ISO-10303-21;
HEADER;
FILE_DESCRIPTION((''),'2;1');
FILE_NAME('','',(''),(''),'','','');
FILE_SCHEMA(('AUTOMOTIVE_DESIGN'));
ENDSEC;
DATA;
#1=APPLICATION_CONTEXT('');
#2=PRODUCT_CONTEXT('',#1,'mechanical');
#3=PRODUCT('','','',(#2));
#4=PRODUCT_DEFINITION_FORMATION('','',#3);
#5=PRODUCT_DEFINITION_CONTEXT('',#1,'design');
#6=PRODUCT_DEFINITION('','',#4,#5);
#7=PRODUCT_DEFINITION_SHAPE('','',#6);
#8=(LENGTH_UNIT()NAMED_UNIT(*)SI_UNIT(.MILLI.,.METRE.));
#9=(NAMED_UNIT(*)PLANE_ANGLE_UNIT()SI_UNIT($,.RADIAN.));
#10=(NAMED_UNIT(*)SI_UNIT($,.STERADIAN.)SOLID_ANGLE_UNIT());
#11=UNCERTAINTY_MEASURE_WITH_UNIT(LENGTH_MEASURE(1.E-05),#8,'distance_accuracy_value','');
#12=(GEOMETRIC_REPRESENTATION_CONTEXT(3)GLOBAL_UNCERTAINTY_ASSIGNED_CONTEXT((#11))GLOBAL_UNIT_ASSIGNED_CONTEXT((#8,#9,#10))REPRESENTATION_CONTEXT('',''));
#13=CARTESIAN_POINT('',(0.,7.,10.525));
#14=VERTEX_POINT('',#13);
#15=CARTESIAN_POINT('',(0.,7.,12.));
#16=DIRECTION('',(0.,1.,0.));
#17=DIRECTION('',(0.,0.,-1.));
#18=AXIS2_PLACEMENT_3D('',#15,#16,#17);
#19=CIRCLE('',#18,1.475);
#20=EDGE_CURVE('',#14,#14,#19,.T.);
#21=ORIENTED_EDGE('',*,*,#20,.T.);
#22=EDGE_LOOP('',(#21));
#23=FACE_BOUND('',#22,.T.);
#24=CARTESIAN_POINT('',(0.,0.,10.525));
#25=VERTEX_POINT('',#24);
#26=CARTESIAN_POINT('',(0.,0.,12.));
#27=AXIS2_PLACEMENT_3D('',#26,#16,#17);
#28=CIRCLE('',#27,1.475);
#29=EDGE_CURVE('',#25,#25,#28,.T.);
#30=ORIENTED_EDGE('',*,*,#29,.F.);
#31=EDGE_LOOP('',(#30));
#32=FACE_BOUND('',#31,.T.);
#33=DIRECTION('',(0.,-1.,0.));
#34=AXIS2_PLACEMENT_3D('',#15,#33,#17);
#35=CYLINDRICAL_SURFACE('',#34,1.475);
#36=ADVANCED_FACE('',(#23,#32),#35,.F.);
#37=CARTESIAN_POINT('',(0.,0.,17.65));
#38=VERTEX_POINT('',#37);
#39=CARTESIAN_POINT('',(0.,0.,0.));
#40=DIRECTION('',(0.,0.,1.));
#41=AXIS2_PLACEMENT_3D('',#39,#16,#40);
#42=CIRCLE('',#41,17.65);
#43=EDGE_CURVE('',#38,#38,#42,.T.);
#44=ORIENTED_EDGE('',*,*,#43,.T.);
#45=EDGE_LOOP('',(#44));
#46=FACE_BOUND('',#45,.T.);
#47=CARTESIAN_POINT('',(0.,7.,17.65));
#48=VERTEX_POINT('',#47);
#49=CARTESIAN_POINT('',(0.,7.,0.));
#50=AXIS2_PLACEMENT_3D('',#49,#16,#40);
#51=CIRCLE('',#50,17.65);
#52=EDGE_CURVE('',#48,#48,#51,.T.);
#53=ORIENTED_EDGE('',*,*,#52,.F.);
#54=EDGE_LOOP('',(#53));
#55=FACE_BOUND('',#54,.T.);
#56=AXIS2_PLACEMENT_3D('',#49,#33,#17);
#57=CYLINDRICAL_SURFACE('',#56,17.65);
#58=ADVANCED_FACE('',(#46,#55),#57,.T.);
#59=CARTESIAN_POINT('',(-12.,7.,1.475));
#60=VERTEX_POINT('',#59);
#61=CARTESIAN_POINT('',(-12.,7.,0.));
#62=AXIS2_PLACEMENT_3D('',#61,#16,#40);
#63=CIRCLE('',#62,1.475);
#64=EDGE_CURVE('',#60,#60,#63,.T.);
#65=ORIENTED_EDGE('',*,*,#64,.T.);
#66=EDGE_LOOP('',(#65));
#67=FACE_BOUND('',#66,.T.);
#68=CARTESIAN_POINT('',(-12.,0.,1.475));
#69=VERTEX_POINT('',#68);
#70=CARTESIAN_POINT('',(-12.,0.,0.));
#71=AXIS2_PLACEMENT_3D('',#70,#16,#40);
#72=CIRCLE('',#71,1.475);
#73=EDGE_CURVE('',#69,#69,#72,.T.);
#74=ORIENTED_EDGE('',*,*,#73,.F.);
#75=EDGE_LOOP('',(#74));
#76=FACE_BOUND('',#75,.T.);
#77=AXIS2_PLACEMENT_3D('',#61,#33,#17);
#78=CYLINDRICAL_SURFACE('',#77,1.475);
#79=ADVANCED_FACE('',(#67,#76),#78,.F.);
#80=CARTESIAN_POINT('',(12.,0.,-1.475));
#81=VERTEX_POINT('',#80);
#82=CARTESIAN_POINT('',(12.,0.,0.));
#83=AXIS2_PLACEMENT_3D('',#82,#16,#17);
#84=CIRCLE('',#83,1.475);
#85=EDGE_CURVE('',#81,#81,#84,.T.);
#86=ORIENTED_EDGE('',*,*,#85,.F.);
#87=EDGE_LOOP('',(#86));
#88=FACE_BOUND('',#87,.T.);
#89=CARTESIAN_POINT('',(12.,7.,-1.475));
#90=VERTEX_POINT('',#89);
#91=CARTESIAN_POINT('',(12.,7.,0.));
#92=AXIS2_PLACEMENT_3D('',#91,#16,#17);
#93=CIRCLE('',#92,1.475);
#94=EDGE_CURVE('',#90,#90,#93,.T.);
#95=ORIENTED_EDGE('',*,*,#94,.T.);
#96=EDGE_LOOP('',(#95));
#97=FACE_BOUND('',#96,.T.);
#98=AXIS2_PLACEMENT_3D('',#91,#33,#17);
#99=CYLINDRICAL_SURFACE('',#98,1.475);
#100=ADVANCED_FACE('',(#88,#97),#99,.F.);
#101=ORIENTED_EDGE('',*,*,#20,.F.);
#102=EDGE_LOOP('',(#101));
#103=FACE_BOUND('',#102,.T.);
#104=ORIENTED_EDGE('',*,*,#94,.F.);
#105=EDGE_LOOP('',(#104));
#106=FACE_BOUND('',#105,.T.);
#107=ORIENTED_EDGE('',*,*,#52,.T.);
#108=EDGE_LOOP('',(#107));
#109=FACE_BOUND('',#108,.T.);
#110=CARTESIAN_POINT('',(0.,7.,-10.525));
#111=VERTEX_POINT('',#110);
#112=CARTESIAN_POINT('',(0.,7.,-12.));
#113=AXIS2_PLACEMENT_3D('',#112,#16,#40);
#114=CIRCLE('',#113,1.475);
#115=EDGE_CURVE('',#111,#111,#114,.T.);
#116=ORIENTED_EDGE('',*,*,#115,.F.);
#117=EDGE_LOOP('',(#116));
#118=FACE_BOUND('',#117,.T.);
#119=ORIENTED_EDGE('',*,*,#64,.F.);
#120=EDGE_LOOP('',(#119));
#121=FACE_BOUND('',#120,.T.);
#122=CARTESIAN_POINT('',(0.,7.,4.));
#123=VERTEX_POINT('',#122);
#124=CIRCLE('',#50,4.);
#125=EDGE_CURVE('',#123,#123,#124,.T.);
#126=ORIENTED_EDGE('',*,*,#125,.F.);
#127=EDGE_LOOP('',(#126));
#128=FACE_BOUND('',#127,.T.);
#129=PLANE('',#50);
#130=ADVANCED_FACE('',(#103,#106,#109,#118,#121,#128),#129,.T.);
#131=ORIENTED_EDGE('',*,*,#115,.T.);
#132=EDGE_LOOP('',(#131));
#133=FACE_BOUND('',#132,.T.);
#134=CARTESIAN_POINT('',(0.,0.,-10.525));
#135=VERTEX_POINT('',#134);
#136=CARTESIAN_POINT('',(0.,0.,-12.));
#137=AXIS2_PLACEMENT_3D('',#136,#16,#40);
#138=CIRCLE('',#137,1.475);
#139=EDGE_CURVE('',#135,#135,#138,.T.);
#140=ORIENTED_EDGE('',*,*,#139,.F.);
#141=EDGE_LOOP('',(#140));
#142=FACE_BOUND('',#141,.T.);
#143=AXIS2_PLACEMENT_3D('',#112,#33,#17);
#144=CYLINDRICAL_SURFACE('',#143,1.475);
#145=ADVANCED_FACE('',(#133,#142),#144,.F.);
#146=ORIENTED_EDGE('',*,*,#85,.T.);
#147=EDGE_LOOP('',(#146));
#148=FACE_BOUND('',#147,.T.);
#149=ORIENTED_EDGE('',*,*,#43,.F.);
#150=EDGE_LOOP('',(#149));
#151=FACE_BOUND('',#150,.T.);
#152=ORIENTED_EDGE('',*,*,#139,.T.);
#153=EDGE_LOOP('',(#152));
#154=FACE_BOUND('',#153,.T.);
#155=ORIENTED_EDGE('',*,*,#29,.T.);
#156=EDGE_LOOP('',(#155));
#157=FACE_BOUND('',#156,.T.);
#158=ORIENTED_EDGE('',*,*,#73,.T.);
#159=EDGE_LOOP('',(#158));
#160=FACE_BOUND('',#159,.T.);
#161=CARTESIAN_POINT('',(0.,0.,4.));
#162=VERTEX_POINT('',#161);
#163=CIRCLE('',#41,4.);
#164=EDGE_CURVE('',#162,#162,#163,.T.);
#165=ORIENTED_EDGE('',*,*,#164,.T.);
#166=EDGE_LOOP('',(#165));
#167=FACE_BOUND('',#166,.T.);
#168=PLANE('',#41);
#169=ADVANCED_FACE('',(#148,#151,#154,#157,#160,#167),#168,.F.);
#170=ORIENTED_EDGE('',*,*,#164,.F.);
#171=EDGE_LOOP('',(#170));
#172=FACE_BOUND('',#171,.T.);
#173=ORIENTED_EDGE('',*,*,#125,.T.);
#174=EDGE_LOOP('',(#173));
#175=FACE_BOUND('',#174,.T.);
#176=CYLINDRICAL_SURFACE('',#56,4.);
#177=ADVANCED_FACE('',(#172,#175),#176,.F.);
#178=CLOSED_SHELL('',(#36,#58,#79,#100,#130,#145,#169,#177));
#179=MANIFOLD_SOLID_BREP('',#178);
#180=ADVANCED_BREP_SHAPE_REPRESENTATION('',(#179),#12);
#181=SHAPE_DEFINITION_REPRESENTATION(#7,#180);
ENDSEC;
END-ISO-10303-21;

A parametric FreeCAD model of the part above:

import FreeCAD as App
import Part
import Sketcher

V = App.Vector

doc = App.newDocument("Part")
params = doc.addObject("Spreadsheet::Sheet", "Params")
for row, (alias, value) in enumerate([
    ("sketch1_diameter", "8 mm"),
    ("sketch1_diameter2", "35.3 mm"),
    ("sketch1_diameter3", "2.95 mm"),
    ("pad1_length", "7 mm"),
], start=1):
    params.set(f"A{row}", alias)
    params.set(f"B{row}", "=" + value)
    params.setAlias(f"B{row}", alias)

body = doc.addObject("PartDesign::Body", "Body")

sketch1 = body.newObject("Sketcher::SketchObject", "Sketch")
sketch1.AttachmentSupport = (doc.getObject("XZ_Plane"), [""])
sketch1.MapMode = "FlatFace"
sketch1.addGeometry([
    Part.Circle(V(0, 0, 0), V(0, 0, 1), 17.65),
    Part.Circle(V(0, -12, 0), V(0, 0, 1), 1.475),
    Part.Circle(V(-12, 0, 0), V(0, 0, 1), 1.475),
    Part.Circle(V(12, 0, 0), V(0, 0, 1), 1.475),
    Part.Circle(V(0, 0, 0), V(0, 0, 1), 4),
    Part.Circle(V(0, 12, 0), V(0, 0, 1), 1.475),
], False)
sketch1.addConstraint([
    Sketcher.Constraint("Coincident", 0, 3, -1, 1),
    Sketcher.Constraint("Coincident", 4, 3, -1, 1),
    Sketcher.Constraint("Equal", 1, 2),
    Sketcher.Constraint("Equal", 2, 3),
    Sketcher.Constraint("Equal", 3, 5),
    Sketcher.Constraint("Symmetric", 2, 3, 3, 3, -1, 1),
    Sketcher.Constraint("Symmetric", 1, 3, 5, 3, -1, 1),
    Sketcher.Constraint("PointOnObject", 1, 3, -2),
    Sketcher.Constraint("PointOnObject", 2, 3, -1),
    Sketcher.Constraint("Diameter", 4, 8.0),
    Sketcher.Constraint("Diameter", 0, 35.3),
    Sketcher.Constraint("Diameter", 1, 2.95),
    Sketcher.Constraint("DistanceY", 1, 3, -1, 1, 12.0),
    Sketcher.Constraint("DistanceX", 2, 3, -1, 1, 12.0),
])
sketch1.setExpression("Constraints[9]", "Params.sketch1_diameter")
sketch1.setExpression("Constraints[10]", "Params.sketch1_diameter2")
sketch1.setExpression("Constraints[11]", "Params.sketch1_diameter3")
pad1 = body.newObject("PartDesign::Pad", "Pad")
pad1.Profile = sketch1
pad1.setExpression("Length", "Params.pad1_length")
pad1.Reversed = True

doc.recompute()
